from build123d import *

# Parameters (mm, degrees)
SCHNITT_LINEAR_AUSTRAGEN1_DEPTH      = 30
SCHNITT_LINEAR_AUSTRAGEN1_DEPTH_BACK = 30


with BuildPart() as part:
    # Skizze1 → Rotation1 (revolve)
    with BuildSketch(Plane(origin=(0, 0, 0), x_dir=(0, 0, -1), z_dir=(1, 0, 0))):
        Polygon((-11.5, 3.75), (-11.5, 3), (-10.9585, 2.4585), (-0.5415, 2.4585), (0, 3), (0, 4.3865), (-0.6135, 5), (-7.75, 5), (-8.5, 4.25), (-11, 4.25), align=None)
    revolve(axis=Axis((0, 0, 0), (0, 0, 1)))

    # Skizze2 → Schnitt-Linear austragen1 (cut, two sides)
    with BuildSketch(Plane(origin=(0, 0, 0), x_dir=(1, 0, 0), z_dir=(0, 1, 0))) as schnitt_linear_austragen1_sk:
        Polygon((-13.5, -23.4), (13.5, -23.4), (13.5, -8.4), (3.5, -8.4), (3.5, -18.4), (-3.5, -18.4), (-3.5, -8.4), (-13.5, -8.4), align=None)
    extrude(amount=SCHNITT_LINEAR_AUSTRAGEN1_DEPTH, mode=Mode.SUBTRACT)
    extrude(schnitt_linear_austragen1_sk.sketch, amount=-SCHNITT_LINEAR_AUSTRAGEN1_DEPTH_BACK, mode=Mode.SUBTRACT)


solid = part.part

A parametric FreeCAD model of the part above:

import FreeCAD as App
import Part
import Sketcher
from FreeCAD import Vector

doc = App.newDocument("Part")
body = doc.addObject("PartDesign::Body", "Body")

# Sketch on YZ plane
sketch1 = doc.addObject("Sketcher::SketchObject", "Sketch")
body.addObject(sketch1)
sketch1.AttachmentSupport = (doc.YZ_Plane, [""])
sketch1.MapMode = "FlatFace"
sketch1.addGeometry(Part.LineSegment(Vector(3.8, 11.5, 0), Vector(3, 11.5, 0)), False)
sketch1.addGeometry(Part.LineSegment(Vector(3, 11.5, 0), Vector(2.5, 11, 0)), False)
sketch1.addGeometry(Part.LineSegment(Vector(2.5, 11, 0), Vector(2.5, 0.5, 0)), False)
sketch1.addGeometry(Part.LineSegment(Vector(2.5, 0.5, 0), Vector(3, 0, 0)), False)
sketch1.addGeometry(Part.LineSegment(Vector(3, 0, 0), Vector(4.4, 0, 0)), False)
sketch1.addGeometry(Part.LineSegment(Vector(4.4, 0, 0), Vector(5, 0.6, 0)), False)
sketch1.addGeometry(Part.LineSegment(Vector(5, 0.6, 0), Vector(5, 7.8, 0)), False)
sketch1.addGeometry(Part.LineSegment(Vector(5, 7.8, 0), Vector(4.2, 8.5, 0)), False)
sketch1.addGeometry(Part.LineSegment(Vector(4.2, 8.5, 0), Vector(4.2, 11, 0)), False)
sketch1.addGeometry(Part.LineSegment(Vector(4.2, 11, 0), Vector(3.8, 11.5, 0)), False)
sketch1.addConstraint(Sketcher.Constraint("Coincident", 0, 2, 1, 1))
sketch1.addConstraint(Sketcher.Constraint("Coincident", 1, 2, 2, 1))
sketch1.addConstraint(Sketcher.Constraint("Coincident", 2, 2, 3, 1))
sketch1.addConstraint(Sketcher.Constraint("Coincident", 3, 2, 4, 1))
sketch1.addConstraint(Sketcher.Constraint("Coincident", 4, 2, 5, 1))
sketch1.addConstraint(Sketcher.Constraint("Coincident", 5, 2, 6, 1))
sketch1.addConstraint(Sketcher.Constraint("Coincident", 6, 2, 7, 1))
sketch1.addConstraint(Sketcher.Constraint("Coincident", 7, 2, 8, 1))
sketch1.addConstraint(Sketcher.Constraint("Coincident", 8, 2, 9, 1))
sketch1.addConstraint(Sketcher.Constraint("Coincident", 9, 2, 0, 1))
sketch1.addConstraint(Sketcher.Constraint("Horizontal", 0))
sketch1.addConstraint(Sketcher.Constraint("Vertical", 2))
sketch1.addConstraint(Sketcher.Constraint("Horizontal", 4))
sketch1.addConstraint(Sketcher.Constraint("Vertical", 6))
sketch1.addConstraint(Sketcher.Constraint("Vertical", 8))
sketch1.addConstraint(Sketcher.Constraint("PointOnObject", 3, 2, -1))
sketch1.addConstraint(Sketcher.Constraint("Perpendicular", 1, 3))
sketch1.addConstraint(Sketcher.Constraint("Perpendicular", 3, 5))
sketch1.addConstraint(Sketcher.Constraint("Perpendicular", 5, 7))
sketch1.addConstraint(Sketcher.Constraint("Parallel", 7, 9))
sketch1.addConstraint(Sketcher.Constraint("Vertical", 0, 2, 3, 2))
sketch1.addConstraint(Sketcher.Constraint("Equal", 1, 3))
sketch1.addConstraint(Sketcher.Constraint("DistanceY", 8, 1, 8, 2, 2.5))
sketch1.addConstraint(Sketcher.Constraint("DistanceX", -1, 1, 0, 2, 3.0))
sketch1.addConstraint(Sketcher.Constraint("DistanceX", -1, 1, 5, 2, 5.0))
sketch1.addConstraint(Sketcher.Constraint("DistanceY", -1, 1, 8, 2, 11.0))
sketch1.addConstraint(Sketcher.Constraint("DistanceY", 7, 2, 0, 2, 3.0))
sketch1.addConstraint(Sketcher.Constraint("DistanceX", 0, 2, 0, 1, 0.75))
sketch1.addConstraint(Sketcher.Constraint("DistanceY", 2, 2, 2, 1, 10.417))
sketch1.addConstraint(Sketcher.Constraint("DistanceX", 4, 1, 4, 2, 1.3865))
revolution = doc.addObject("PartDesign::Revolution", "Revolution")
body.addObject(revolution)
revolution.Profile = sketch1
revolution.ReferenceAxis = (sketch1, ["V_Axis"])
revolution.Angle = 360

# Sketch on XZ plane
sketch2 = doc.addObject("Sketcher::SketchObject", "Sketch001")
body.addObject(sketch2)
sketch2.AttachmentSupport = (doc.XZ_Plane, [""])
sketch2.MapMode = "FlatFace"
sketch2.addGeometry(Part.LineSegment(Vector(-14, 23, 0), Vector(14, 23, 0)), False)
sketch2.addGeometry(Part.LineSegment(Vector(14, 23, 0), Vector(14, 8, 0)), False)
sketch2.addGeometry(Part.LineSegment(Vector(14, 8, 0), Vector(4, 8, 0)), False)
sketch2.addGeometry(Part.LineSegment(Vector(4, 8, 0), Vector(4, 18, 0)), False)
sketch2.addGeometry(Part.LineSegment(Vector(4, 18, 0), Vector(-4, 18, 0)), False)
sketch2.addGeometry(Part.LineSegment(Vector(-4, 18, 0), Vector(-4, 8, 0)), False)
sketch2.addGeometry(Part.LineSegment(Vector(-4, 8, 0), Vector(-14, 8, 0)), False)
sketch2.addGeometry(Part.LineSegment(Vector(-14, 8, 0), Vector(-14, 23, 0)), False)
sketch2.addConstraint(Sketcher.Constraint("Coincident", 0, 2, 1, 1))
sketch2.addConstraint(Sketcher.Constraint("Coincident", 1, 2, 2, 1))
sketch2.addConstraint(Sketcher.Constraint("Coincident", 2, 2, 3, 1))
sketch2.addConstraint(Sketcher.Constraint("Coincident", 3, 2, 4, 1))
sketch2.addConstraint(Sketcher.Constraint("Coincident", 4, 2, 5, 1))
sketch2.addConstraint(Sketcher.Constraint("Coincident", 5, 2, 6, 1))
sketch2.addConstraint(Sketcher.Constraint("Coincident", 6, 2, 7, 1))
sketch2.addConstraint(Sketcher.Constraint("Coincident", 7, 2, 0, 1))
sketch2.addConstraint(Sketcher.Constraint("Horizontal", 0))
sketch2.addConstraint(Sketcher.Constraint("Vertical", 1))
sketch2.addConstraint(Sketcher.Constraint("Horizontal", 2))
sketch2.addConstraint(Sketcher.Constraint("Vertical", 3))
sketch2.addConstraint(Sketcher.Constraint("Horizontal", 4))
sketch2.addConstraint(Sketcher.Constraint("Vertical", 5))
sketch2.addConstraint(Sketcher.Constraint("Horizontal", 6))
sketch2.addConstraint(Sketcher.Constraint("Vertical", 7))
sketch2.addConstraint(Sketcher.Constraint("Symmetric", 2, 2, 5, 2, -2))
sketch2.addConstraint(Sketcher.Constraint("Equal", 2, 6))
sketch2.addConstraint(Sketcher.Constraint("Equal", 6, 3))
sketch2.addConstraint(Sketcher.Constraint("DistanceX", 0, 1, 0, 2, 27.0))
sketch2.addConstraint(Sketcher.Constraint("DistanceX", 2, 2, 2, 1, 10.0))
sketch2.addConstraint(Sketcher.Constraint("DistanceY", 1, 2, 1, 1, 15.0))
sketch2.addConstraint(Sketcher.Constraint("DistanceY", -1, 1, 0, 2, 23.4))
pocket1 = doc.addObject("PartDesign::Pocket", "Pocket")
body.addObject(pocket1)
pocket1.Profile = sketch2
pocket1.Type = "ThroughAll"
pocket1.Midplane = True

doc.recompute()
